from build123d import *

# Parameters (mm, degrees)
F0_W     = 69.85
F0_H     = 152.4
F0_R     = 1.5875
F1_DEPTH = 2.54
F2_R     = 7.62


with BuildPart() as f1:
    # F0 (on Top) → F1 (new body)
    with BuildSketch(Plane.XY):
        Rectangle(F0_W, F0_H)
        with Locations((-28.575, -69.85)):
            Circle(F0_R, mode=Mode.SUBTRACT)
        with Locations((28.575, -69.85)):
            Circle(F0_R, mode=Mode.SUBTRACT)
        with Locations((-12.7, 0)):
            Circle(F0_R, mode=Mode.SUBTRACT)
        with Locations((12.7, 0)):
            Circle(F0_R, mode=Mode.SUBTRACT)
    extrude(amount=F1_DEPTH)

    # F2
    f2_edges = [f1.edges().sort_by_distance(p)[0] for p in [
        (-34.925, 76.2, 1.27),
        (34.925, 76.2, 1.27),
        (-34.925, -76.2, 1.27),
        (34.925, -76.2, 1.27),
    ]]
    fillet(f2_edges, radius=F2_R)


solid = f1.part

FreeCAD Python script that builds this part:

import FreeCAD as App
import Part
import Sketcher

V = App.Vector
Q = App.Units.Quantity


def edges_at(feature, points):
    """Names of the edges that pass closest to the given points."""
    edges = feature.Shape.Edges
    near = lambda p: min(range(len(edges)), key=lambda i: edges[i].distToShape(Part.Vertex(*p))[0])
    return sorted({f"Edge{near(p) + 1}" for p in points})

doc = App.newDocument("Part")
body = doc.addObject("PartDesign::Body", "Body")

sketch1 = body.newObject("Sketcher::SketchObject", "Sketch")
sketch1.AttachmentSupport = (doc.getObject("XY_Plane"), [""])
sketch1.MapMode = "FlatFace"
sketch1.addGeometry(Part.LineSegment(V(-34.925, 76.2, 0), V(-34.925, -76.2, 0)), False)
sketch1.addGeometry(Part.LineSegment(V(-34.925, -76.2, 0), V(34.925, -76.2, 0)), False)
sketch1.addGeometry(Part.LineSegment(V(34.925, -76.2, 0), V(34.925, 76.2, 0)), False)
sketch1.addGeometry(Part.LineSegment(V(34.925, 76.2, 0), V(-34.925, 76.2, 0)), False)
sketch1.addGeometry(Part.Circle(V(-28.575, -69.85, 0), V(0, 0, 1), 1.5875), False)
sketch1.addGeometry(Part.Circle(V(28.575, -69.85, 0), V(0, 0, 1), 1.5875), False)
sketch1.addGeometry(Part.Circle(V(-12.7, 0, 0), V(0, 0, 1), 1.5875), False)
sketch1.addGeometry(Part.Circle(V(12.7, 0, 0), V(0, 0, 1), 1.5875), False)
sketch1.addConstraint(Sketcher.Constraint("Coincident", 0, 2, 1, 1))
sketch1.addConstraint(Sketcher.Constraint("Coincident", 1, 2, 2, 1))
sketch1.addConstraint(Sketcher.Constraint("Coincident", 2, 2, 3, 1))
sketch1.addConstraint(Sketcher.Constraint("Coincident", 3, 2, 0, 1))
sketch1.addConstraint(Sketcher.Constraint("Vertical", 0))
sketch1.addConstraint(Sketcher.Constraint("Horizontal", 1))
sketch1.addConstraint(Sketcher.Constraint("Vertical", 2))
sketch1.addConstraint(Sketcher.Constraint("Horizontal", 3))
sketch1.addConstraint(Sketcher.Constraint("Equal", 4, 5))
sketch1.addConstraint(Sketcher.Constraint("Equal", 5, 6))
sketch1.addConstraint(Sketcher.Constraint("Equal", 6, 7))
sketch1.addConstraint(Sketcher.Constraint("Symmetric", 6, 3, 7, 3, -1, 1))
sketch1.addConstraint(Sketcher.Constraint("Symmetric", 0, 2, 2, 2, -1, 1))
sketch1.addConstraint(Sketcher.Constraint("Symmetric", 4, 3, 5, 3, -2))
sketch1.addConstraint(Sketcher.Constraint("PointOnObject", 6, 3, -1))
sketch1.addConstraint(Sketcher.Constraint("DistanceY", 0, 2, 0, 1, Q("6 in")))
sketch1.addConstraint(Sketcher.Constraint("Diameter", 4, Q("0.125 in")))
sketch1.addConstraint(Sketcher.Constraint("DistanceX", 6, 3, 7, 3, Q("1 in")))
sketch1.addConstraint(Sketcher.Constraint("DistanceX", 1, 1, 1, 2, Q("2.75 in")))
sketch1.addConstraint(Sketcher.Constraint("DistanceX", 0, 2, 5, 3, Q("2.5 in")))
sketch1.addConstraint(Sketcher.Constraint("DistanceY", 4, 3, -1, 1, Q("2.75 in")))
pad1 = body.newObject("PartDesign::Pad", "Pad")
pad1.Profile = sketch1
pad1.Length = Q("0.1 in")
doc.recompute()

fillet = body.newObject("PartDesign::Fillet", "Fillet")
fillet.Base = (pad1, edges_at(pad1, [
    (-34.925, 76.2, 1.27),
    (34.925, 76.2, 1.27),
    (-34.925, -76.2, 1.27),
    (34.925, -76.2, 1.27),
]))
fillet.Radius = Q("0.3 in")

doc.recompute()
